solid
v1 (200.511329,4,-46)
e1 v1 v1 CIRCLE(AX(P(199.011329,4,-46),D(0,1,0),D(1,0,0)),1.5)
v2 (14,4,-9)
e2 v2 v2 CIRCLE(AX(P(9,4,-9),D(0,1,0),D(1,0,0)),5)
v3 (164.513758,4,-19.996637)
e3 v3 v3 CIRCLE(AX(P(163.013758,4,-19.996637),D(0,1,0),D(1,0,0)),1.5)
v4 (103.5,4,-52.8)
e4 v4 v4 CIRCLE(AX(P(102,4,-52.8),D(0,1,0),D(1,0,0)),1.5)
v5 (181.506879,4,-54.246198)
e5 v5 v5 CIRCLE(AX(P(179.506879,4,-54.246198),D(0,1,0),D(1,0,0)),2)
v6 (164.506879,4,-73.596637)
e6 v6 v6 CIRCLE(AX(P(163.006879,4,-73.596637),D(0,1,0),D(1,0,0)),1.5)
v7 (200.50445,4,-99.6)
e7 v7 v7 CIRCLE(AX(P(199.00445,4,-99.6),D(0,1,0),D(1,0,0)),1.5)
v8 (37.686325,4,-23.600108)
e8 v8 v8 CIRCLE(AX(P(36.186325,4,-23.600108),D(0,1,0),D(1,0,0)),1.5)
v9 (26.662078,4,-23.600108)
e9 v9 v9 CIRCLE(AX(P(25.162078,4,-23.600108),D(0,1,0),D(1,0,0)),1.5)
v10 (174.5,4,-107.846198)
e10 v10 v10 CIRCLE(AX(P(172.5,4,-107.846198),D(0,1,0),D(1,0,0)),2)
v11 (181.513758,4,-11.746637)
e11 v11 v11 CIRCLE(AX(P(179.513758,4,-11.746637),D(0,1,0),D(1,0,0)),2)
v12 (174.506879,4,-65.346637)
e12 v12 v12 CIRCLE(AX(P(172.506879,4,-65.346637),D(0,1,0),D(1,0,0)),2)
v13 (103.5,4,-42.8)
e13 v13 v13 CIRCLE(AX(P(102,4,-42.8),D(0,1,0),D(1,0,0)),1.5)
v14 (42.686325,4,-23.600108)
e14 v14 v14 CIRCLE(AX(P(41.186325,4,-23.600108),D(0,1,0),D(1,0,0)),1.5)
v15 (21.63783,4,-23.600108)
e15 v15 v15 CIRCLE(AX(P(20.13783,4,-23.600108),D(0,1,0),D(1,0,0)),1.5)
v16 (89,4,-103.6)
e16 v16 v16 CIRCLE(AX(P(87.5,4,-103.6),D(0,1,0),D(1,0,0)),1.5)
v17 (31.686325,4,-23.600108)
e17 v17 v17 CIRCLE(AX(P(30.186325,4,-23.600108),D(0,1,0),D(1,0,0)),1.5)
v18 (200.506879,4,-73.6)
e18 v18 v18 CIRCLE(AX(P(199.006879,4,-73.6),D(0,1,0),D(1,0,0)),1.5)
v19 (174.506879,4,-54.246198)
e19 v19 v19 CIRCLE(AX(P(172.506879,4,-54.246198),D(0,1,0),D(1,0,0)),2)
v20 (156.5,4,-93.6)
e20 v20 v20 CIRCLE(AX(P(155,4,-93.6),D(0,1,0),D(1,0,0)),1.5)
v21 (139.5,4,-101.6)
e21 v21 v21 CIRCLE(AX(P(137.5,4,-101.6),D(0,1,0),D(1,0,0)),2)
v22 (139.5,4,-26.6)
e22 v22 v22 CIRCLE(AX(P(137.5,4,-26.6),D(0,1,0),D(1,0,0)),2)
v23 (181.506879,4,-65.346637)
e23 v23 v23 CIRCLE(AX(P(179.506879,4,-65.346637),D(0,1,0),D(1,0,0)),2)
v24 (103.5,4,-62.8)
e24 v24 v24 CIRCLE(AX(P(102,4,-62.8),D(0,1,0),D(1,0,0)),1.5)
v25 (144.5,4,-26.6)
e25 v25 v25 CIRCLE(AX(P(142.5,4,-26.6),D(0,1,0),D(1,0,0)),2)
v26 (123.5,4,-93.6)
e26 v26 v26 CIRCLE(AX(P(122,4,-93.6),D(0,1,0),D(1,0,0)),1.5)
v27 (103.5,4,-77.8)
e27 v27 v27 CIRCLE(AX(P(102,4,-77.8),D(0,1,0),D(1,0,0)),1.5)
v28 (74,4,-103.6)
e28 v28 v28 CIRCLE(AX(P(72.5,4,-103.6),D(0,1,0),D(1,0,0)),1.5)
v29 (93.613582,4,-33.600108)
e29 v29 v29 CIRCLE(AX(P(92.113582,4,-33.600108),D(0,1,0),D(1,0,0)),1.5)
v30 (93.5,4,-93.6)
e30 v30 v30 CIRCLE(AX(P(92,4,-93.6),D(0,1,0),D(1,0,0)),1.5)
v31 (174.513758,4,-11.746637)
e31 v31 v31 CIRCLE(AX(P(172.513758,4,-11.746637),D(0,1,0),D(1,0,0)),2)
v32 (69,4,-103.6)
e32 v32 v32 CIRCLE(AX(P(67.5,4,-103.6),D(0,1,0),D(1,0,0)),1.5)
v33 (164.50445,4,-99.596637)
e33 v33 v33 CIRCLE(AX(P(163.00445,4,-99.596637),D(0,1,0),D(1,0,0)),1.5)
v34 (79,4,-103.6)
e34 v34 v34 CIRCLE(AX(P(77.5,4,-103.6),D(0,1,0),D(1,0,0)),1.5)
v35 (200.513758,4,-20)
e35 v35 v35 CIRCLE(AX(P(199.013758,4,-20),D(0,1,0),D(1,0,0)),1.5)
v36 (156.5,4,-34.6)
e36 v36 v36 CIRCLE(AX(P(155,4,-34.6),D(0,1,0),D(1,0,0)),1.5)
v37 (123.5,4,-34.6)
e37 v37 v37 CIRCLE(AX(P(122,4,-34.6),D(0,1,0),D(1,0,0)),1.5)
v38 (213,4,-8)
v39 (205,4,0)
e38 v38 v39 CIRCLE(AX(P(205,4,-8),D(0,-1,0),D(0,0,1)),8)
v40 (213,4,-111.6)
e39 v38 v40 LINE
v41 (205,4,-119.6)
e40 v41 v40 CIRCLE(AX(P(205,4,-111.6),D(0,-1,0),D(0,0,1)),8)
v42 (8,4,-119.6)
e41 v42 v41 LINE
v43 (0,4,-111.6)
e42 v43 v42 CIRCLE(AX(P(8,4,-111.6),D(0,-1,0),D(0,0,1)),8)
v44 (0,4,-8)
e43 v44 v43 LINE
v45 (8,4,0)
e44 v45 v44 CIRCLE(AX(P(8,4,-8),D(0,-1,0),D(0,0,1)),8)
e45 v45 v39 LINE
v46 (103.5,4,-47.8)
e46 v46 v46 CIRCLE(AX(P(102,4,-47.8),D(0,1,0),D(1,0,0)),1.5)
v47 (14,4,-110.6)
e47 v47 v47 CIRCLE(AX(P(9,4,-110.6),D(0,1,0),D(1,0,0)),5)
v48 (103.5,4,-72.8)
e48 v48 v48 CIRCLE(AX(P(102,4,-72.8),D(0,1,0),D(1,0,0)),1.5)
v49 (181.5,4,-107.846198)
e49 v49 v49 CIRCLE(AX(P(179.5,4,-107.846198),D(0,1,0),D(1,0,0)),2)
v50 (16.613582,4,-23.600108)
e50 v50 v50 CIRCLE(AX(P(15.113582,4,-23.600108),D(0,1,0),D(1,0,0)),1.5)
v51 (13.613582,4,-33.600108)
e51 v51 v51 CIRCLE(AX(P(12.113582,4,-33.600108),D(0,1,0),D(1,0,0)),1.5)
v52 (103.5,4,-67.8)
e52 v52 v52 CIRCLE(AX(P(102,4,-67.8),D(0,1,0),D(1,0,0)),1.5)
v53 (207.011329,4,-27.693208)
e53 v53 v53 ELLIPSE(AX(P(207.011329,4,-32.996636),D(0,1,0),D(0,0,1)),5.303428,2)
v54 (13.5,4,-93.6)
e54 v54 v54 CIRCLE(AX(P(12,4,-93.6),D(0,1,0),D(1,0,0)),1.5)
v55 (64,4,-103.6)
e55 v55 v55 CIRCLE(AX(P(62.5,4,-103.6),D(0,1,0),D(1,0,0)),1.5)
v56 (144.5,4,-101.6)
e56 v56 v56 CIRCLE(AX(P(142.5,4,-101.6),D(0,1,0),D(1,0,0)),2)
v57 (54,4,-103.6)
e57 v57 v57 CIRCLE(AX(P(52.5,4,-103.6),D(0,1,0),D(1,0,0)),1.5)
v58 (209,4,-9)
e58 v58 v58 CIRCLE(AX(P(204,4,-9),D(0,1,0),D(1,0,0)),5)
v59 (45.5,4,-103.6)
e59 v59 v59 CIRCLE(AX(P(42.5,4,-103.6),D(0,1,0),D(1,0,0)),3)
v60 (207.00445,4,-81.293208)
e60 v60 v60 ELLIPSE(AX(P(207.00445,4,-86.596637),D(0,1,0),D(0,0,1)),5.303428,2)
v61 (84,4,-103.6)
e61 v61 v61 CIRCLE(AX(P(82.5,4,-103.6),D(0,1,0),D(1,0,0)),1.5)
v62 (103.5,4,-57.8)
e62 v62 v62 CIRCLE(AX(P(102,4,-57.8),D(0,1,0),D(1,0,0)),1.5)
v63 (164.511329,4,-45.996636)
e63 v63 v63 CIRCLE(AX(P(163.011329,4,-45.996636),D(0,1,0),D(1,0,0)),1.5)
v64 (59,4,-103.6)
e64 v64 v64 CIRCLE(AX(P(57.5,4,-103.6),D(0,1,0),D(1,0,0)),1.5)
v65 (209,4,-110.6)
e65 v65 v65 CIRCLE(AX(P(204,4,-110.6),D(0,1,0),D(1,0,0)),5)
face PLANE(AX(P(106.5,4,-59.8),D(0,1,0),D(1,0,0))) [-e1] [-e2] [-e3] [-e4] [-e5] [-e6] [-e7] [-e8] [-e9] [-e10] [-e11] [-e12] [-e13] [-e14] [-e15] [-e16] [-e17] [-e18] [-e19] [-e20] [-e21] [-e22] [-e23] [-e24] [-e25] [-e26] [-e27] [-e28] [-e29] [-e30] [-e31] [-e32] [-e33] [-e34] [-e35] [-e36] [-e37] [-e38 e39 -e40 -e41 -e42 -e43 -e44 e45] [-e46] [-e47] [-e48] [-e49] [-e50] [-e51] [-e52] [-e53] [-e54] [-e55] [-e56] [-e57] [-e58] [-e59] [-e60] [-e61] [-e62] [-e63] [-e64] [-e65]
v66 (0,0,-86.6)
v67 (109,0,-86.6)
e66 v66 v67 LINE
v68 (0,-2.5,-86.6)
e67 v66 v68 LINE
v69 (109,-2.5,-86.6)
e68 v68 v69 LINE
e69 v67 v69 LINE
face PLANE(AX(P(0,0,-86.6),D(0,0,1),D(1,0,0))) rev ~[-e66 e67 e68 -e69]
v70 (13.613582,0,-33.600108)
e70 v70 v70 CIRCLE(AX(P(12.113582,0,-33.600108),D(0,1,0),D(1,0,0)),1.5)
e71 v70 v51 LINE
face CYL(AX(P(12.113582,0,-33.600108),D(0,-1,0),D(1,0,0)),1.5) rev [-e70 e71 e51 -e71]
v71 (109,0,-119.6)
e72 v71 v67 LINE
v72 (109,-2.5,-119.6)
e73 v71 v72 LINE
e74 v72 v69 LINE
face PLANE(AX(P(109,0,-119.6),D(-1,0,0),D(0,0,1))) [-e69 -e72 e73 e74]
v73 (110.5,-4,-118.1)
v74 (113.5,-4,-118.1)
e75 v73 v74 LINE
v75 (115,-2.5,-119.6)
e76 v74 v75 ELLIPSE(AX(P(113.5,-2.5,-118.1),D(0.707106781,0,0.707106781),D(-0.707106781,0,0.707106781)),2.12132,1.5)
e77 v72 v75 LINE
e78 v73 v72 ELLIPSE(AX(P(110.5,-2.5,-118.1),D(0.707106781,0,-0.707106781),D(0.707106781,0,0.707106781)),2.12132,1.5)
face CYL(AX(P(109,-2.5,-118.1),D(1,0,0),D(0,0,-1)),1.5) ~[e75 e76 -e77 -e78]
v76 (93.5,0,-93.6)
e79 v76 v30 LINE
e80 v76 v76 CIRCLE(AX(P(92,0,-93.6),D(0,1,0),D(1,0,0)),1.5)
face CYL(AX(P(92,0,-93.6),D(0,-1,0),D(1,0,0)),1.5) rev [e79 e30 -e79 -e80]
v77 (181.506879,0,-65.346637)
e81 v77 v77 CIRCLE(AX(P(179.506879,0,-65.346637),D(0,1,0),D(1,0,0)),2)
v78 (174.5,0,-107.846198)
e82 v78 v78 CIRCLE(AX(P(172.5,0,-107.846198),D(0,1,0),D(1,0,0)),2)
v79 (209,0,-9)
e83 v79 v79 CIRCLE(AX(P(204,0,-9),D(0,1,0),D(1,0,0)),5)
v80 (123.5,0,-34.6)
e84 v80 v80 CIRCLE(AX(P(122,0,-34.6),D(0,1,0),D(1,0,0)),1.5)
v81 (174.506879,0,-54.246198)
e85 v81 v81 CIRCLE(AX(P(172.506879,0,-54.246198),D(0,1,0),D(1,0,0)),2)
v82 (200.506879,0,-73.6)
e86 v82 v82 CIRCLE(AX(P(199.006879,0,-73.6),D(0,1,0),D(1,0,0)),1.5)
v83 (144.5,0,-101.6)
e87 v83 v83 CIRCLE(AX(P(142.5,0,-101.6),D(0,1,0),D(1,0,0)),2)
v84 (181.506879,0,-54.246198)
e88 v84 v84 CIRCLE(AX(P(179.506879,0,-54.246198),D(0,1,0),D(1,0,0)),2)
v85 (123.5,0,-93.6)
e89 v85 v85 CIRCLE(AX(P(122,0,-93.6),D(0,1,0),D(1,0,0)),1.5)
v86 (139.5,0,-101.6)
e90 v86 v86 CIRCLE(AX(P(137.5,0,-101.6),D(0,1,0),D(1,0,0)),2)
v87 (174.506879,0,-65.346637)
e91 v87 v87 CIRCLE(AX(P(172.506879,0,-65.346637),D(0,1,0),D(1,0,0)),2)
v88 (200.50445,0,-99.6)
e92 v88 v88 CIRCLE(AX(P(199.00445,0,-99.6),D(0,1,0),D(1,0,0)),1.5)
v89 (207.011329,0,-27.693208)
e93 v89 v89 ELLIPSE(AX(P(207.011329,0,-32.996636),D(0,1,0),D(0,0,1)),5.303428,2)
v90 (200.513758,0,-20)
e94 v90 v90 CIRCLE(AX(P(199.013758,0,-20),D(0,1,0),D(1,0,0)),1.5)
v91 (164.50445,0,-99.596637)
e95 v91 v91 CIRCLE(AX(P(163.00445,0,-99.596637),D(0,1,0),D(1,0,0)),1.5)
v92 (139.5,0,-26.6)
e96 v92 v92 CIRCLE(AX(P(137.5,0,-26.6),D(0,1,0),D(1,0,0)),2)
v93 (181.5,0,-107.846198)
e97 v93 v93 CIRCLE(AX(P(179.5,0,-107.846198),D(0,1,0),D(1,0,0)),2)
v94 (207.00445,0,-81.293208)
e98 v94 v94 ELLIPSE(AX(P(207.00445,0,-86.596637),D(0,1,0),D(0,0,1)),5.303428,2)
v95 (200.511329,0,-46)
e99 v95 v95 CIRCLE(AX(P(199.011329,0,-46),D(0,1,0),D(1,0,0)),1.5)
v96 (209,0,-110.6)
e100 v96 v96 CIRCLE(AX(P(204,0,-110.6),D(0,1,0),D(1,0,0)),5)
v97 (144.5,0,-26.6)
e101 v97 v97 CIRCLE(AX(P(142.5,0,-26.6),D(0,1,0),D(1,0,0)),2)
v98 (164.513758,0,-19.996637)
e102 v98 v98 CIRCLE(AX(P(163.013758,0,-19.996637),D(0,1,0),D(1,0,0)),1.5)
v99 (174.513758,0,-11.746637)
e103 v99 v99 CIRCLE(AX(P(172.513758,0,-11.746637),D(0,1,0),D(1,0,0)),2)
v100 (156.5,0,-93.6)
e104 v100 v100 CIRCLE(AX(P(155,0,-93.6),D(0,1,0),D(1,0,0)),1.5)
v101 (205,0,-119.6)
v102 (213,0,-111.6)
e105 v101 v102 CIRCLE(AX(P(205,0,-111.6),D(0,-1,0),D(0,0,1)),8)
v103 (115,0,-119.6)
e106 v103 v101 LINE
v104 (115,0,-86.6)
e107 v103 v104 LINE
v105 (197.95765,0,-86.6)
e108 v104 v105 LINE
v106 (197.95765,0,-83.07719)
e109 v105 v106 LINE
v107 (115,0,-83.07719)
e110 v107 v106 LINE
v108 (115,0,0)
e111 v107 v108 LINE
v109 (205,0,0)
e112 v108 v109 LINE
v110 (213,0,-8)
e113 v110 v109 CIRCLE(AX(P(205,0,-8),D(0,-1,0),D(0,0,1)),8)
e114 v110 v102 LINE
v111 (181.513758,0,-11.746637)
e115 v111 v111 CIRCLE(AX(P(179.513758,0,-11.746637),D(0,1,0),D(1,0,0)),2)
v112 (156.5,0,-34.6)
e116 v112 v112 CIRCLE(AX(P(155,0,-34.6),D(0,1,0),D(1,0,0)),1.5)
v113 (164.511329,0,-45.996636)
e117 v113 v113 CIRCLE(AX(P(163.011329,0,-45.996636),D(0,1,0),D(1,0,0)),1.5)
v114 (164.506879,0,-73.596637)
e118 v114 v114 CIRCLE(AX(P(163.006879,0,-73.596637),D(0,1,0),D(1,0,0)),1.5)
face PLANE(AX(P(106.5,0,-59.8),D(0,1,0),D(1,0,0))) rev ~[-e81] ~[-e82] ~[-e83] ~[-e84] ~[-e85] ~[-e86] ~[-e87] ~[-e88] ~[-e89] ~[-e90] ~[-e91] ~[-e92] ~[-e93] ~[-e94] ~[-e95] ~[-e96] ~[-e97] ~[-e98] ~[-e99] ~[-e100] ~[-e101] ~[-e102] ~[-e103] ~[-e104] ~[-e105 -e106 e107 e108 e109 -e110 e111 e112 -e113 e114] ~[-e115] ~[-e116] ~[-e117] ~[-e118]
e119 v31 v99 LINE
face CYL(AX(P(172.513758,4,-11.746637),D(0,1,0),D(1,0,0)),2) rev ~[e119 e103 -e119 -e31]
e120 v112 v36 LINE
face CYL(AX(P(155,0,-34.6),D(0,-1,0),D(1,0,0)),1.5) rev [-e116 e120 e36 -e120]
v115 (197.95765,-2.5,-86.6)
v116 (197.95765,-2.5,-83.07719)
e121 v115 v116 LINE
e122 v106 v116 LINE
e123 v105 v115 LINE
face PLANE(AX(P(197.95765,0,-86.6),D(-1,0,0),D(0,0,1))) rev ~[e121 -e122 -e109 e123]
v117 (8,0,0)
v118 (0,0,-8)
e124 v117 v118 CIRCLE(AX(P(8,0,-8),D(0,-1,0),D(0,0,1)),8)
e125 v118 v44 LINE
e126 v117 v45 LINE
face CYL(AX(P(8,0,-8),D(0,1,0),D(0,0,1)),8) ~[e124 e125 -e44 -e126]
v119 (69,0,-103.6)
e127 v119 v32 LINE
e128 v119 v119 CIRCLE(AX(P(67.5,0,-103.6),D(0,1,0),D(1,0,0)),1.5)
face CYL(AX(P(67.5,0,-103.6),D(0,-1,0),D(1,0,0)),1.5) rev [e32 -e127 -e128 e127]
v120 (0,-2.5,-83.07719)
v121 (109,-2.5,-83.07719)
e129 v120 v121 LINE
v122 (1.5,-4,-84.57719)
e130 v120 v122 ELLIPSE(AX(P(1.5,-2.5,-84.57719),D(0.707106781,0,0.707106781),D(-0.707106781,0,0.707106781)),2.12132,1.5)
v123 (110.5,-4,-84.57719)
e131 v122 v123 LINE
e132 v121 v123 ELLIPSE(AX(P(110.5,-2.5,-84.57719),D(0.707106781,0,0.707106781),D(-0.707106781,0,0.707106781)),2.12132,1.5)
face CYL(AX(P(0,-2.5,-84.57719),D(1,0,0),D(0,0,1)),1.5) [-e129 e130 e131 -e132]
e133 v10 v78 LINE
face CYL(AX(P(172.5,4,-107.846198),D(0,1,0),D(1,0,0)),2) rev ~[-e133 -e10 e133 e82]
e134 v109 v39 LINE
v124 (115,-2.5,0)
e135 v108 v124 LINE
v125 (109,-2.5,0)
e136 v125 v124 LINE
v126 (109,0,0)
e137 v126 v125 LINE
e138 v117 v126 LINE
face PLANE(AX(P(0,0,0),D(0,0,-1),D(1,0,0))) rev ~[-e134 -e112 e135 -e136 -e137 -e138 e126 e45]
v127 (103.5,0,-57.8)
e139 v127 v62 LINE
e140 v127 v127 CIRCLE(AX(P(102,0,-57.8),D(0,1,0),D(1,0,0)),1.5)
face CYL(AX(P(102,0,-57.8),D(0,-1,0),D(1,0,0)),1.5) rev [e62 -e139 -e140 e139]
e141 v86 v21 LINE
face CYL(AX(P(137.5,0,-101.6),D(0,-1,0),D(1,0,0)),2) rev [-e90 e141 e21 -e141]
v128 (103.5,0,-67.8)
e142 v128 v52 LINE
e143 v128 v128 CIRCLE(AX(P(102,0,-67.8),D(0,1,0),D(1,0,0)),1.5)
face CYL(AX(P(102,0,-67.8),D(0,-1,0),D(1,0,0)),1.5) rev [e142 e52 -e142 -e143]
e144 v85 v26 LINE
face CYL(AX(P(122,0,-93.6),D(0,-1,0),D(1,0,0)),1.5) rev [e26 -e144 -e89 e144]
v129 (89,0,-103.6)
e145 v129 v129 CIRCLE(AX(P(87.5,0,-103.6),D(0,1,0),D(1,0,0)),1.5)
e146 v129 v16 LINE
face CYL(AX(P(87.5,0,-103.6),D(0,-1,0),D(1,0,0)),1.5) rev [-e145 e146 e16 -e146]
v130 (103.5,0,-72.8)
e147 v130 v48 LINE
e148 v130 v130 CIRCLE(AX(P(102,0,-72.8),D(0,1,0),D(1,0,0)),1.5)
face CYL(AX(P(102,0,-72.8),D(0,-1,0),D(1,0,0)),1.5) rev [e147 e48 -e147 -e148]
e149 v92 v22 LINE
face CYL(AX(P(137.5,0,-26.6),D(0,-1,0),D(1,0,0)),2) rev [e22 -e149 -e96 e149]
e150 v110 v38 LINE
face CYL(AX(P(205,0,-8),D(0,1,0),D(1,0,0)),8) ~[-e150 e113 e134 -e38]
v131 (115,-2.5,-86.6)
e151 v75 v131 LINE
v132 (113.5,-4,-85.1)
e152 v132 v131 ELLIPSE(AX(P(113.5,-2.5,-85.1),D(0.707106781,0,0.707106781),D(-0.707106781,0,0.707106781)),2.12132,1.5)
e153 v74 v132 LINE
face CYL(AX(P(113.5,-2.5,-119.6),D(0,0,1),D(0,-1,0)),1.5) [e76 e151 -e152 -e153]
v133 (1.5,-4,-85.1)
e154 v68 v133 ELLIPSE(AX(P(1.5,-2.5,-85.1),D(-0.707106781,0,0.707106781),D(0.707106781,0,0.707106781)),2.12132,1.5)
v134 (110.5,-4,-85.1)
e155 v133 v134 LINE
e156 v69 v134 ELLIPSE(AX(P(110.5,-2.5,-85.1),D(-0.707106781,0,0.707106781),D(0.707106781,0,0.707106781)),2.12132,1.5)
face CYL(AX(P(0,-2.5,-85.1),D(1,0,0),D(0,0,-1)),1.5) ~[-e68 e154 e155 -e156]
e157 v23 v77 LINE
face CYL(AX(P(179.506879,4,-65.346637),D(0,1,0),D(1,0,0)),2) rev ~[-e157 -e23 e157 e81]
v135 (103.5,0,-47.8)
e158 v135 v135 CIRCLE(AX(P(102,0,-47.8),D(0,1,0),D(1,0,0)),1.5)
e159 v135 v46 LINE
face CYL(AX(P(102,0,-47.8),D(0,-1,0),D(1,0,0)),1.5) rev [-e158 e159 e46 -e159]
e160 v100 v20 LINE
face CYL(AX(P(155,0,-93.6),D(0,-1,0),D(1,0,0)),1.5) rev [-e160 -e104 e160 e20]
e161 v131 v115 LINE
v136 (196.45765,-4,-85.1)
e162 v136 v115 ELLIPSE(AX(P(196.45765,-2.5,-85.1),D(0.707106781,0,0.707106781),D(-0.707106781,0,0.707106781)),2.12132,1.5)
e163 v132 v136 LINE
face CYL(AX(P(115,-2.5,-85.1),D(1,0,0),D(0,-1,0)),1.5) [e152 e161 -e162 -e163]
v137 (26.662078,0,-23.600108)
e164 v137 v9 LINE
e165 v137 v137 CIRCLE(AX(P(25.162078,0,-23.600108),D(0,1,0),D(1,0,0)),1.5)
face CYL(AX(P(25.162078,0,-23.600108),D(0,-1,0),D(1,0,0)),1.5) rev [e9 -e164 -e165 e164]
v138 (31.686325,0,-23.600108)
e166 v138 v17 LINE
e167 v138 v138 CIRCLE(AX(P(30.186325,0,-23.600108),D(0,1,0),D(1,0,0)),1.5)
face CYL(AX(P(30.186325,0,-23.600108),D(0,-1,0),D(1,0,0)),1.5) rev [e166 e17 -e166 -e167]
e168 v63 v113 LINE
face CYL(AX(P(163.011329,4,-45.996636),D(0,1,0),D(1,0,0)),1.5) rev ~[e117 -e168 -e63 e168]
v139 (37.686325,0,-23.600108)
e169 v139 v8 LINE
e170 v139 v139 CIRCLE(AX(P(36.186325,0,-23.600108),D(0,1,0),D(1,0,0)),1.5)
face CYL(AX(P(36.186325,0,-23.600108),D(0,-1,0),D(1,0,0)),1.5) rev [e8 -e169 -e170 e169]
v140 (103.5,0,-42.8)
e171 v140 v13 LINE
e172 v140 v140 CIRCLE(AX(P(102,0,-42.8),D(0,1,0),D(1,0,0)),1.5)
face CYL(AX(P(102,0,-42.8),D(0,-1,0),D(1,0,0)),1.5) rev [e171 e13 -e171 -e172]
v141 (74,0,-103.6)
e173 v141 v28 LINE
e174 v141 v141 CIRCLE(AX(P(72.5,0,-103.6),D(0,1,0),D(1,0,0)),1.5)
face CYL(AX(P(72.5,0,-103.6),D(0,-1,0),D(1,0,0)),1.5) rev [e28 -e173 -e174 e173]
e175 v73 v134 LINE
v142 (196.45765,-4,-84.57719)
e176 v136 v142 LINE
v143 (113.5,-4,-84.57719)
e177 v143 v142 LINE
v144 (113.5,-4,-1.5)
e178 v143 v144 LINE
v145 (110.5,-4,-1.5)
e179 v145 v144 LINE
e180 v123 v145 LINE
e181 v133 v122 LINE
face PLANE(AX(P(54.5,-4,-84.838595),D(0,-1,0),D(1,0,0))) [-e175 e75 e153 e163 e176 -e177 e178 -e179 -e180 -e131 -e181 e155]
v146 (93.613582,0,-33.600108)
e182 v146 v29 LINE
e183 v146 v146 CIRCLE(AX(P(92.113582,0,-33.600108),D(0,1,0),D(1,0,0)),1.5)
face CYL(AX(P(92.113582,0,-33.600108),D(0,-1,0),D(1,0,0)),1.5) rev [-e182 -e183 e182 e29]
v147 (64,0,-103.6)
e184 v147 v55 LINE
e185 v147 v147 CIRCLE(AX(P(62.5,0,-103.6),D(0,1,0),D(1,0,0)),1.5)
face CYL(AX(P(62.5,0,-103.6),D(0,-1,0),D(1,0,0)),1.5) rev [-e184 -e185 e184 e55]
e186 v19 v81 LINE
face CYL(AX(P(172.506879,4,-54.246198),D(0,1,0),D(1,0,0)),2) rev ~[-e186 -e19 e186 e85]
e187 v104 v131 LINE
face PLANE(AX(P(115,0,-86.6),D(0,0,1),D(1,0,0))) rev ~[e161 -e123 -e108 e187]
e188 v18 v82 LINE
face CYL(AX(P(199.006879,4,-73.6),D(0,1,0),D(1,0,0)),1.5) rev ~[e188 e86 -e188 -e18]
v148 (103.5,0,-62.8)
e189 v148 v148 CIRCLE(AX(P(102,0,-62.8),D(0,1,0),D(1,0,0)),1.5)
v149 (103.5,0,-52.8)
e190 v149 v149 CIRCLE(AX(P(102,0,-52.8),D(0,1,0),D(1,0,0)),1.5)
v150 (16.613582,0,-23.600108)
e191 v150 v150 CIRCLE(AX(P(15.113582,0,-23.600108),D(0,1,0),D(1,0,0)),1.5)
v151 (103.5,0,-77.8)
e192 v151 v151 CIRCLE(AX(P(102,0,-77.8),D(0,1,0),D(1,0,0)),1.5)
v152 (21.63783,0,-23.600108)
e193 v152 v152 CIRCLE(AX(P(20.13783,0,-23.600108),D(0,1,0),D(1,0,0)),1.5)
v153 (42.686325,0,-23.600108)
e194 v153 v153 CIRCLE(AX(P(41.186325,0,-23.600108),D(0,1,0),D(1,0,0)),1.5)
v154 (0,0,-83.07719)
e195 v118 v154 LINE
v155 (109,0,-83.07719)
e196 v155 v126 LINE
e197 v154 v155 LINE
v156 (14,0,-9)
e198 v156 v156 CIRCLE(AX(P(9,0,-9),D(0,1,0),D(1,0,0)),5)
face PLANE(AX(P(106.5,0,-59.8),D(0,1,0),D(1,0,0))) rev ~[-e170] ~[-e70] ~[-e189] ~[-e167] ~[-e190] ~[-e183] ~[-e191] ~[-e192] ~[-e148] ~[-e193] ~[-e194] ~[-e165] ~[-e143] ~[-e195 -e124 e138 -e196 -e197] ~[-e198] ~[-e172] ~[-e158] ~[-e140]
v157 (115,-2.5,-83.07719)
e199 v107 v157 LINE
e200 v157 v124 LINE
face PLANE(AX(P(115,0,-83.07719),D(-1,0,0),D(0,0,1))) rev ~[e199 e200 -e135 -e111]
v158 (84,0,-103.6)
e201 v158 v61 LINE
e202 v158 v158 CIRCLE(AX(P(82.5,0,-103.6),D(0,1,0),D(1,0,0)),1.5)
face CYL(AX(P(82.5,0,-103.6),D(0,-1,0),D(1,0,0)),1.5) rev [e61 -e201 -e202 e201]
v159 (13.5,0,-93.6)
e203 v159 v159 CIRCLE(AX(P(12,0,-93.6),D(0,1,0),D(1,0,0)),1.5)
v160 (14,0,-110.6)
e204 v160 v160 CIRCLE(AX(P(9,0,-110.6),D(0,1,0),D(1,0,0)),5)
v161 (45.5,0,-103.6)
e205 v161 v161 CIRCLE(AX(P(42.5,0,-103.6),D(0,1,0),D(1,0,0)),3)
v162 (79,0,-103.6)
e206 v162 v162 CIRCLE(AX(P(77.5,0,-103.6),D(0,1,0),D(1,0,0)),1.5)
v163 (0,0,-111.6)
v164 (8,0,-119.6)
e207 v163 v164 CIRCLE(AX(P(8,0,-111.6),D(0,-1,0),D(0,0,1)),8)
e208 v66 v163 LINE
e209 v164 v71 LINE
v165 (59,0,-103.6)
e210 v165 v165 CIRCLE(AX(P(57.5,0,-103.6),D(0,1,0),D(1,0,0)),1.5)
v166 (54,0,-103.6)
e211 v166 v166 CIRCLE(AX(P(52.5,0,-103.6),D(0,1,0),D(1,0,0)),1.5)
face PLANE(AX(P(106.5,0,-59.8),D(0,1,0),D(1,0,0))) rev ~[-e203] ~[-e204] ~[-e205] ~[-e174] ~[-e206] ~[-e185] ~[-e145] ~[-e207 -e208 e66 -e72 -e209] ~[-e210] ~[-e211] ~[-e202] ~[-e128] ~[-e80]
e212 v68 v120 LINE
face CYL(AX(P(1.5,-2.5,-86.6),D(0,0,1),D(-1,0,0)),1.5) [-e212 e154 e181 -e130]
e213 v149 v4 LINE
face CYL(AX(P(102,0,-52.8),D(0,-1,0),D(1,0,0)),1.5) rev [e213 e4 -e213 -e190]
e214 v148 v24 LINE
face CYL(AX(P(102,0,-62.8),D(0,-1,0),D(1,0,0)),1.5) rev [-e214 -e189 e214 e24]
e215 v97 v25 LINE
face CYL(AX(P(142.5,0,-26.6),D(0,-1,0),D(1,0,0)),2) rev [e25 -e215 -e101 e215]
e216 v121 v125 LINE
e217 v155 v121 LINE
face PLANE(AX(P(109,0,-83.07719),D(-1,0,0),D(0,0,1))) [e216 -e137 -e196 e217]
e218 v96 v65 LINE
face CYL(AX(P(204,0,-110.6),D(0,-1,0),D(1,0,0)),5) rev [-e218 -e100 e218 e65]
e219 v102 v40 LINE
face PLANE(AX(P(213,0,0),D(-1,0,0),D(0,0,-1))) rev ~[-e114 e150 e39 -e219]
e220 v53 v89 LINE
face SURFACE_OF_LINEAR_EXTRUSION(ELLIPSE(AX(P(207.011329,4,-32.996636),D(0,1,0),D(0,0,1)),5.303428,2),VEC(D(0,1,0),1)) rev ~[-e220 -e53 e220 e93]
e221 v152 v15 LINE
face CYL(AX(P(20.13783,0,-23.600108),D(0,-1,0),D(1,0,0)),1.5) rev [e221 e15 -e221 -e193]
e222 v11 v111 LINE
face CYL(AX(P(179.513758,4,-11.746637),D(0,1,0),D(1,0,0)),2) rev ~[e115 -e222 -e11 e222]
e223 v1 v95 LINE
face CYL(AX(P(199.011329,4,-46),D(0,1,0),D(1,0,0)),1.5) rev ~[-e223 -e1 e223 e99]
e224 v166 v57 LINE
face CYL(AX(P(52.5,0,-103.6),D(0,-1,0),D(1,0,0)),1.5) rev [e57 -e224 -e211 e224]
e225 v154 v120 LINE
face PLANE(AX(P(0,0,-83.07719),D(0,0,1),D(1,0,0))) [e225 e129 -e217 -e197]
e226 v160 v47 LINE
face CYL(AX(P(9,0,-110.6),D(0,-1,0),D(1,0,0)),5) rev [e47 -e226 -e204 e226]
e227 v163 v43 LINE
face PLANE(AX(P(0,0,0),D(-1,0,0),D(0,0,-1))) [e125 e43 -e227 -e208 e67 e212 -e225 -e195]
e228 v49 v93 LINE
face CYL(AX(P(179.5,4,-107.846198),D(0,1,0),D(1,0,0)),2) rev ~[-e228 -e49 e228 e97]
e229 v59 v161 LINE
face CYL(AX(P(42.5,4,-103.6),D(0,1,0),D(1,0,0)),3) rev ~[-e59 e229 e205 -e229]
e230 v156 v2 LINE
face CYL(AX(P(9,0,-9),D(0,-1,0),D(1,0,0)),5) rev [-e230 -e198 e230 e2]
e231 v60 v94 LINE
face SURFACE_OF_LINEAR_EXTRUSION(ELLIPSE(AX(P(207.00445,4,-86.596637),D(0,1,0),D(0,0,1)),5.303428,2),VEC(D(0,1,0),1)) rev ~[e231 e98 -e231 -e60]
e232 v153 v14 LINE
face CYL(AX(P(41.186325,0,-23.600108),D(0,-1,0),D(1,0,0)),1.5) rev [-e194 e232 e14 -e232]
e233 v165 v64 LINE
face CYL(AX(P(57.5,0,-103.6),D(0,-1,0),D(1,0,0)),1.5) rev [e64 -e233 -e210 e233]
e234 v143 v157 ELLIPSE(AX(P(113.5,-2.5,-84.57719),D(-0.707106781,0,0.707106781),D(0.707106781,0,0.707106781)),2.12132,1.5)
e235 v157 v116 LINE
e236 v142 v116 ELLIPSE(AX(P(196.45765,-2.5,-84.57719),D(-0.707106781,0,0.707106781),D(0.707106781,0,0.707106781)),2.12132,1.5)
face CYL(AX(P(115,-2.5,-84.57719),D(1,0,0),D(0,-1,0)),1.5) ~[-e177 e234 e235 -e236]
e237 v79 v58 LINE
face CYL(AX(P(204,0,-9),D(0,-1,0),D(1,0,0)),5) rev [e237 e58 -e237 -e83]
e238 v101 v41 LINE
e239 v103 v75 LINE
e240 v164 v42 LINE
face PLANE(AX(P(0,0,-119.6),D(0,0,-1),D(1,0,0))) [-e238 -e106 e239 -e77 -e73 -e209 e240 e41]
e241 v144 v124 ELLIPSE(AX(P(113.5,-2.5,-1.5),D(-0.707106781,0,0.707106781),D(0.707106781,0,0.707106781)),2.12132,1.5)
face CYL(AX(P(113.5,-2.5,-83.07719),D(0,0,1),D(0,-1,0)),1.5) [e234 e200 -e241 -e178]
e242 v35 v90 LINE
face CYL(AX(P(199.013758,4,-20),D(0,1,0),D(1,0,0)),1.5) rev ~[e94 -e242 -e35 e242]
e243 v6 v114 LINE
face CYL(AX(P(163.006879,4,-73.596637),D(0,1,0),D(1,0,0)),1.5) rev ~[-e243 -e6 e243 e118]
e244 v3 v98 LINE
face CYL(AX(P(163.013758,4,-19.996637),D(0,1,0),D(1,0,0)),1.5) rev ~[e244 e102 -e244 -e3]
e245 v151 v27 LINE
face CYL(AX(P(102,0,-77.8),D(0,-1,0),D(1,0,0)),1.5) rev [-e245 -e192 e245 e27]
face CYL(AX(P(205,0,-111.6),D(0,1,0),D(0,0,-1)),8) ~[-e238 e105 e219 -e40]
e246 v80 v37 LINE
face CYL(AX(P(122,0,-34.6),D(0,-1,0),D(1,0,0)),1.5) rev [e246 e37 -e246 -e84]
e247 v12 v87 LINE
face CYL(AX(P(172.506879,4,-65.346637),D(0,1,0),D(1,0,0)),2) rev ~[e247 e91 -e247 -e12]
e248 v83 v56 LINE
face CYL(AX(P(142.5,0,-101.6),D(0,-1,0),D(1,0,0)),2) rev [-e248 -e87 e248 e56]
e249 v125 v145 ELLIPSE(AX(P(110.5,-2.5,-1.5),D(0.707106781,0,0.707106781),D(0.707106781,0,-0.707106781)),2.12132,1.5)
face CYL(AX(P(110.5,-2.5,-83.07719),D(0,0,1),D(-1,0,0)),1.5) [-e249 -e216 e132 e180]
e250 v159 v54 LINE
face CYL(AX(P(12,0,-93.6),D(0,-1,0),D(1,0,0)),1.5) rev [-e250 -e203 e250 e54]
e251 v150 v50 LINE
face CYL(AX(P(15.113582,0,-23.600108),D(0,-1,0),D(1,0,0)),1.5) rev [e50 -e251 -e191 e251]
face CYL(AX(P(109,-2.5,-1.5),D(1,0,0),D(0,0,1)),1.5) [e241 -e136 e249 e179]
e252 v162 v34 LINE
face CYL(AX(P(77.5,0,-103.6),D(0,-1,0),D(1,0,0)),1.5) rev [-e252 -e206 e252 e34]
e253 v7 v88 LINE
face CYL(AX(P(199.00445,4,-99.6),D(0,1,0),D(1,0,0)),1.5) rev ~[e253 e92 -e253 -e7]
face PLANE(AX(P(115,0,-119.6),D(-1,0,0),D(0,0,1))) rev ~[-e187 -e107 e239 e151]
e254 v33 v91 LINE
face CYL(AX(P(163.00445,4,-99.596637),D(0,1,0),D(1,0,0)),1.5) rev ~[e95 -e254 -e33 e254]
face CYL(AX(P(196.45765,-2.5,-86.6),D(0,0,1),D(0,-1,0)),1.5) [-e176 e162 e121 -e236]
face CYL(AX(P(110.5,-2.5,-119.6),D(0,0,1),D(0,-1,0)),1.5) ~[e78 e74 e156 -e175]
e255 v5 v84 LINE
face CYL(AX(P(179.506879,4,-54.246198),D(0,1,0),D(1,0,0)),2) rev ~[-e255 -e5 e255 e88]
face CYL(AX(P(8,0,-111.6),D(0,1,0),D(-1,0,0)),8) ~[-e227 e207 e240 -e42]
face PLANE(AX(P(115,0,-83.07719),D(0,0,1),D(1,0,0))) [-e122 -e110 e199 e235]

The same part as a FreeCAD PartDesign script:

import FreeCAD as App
import Part
import Sketcher


def edges_at(feature, points):
    """Names of the edges that pass closest to the given points."""
    edges = feature.Shape.Edges
    near = lambda p: min(range(len(edges)), key=lambda i: edges[i].distToShape(Part.Vertex(*p))[0])
    return sorted({f"Edge{near(p) + 1}" for p in points})


def add_polygon(sketch, points):
    """Adds a closed chain of lines whose ends are joined by coincident constraints."""
    first, n = sketch.GeometryCount, len(points)
    for a, b in zip(points, points[1:] + points[:1]):
        sketch.addGeometry(Part.LineSegment(App.Vector(*a, 0), App.Vector(*b, 0)), False)
    for i in range(n):
        sketch.addConstraint(Sketcher.Constraint("Coincident", first + i, 2, first + (i + 1) % n, 1))

doc = App.newDocument("Part")
body = doc.addObject("PartDesign::Body", "Body")

# Sketch on XZ plane
sketch1 = body.newObject("Sketcher::SketchObject", "Sketch")
sketch1.AttachmentSupport = (doc.getObject("XZ_Plane"), [""])
sketch1.MapMode = "FlatFace"
add_polygon(sketch1, [(0, -119.6), (0, 0), (213, 0), (213, -119.6)])  # lines 0-3
sketch1.addGeometry(Part.Circle(App.Vector(9, -9, 0), App.Vector(0, 0, 1), 5), False)  # 4
sketch1.addGeometry(Part.Circle(App.Vector(15.113582, -23.600108, 0), App.Vector(0, 0, 1), 1.5), False)  # 5
sketch1.addGeometry(Part.Circle(App.Vector(20.13783, -23.600108, 0), App.Vector(0, 0, 1), 1.5), False)  # 6
sketch1.addGeometry(Part.Circle(App.Vector(25.162078, -23.600108, 0), App.Vector(0, 0, 1), 1.5), False)  # 7
sketch1.addGeometry(Part.Circle(App.Vector(30.186325, -23.600108, 0), App.Vector(0, 0, 1), 1.5), False)  # 8
sketch1.addGeometry(Part.Circle(App.Vector(36.186325, -23.600108, 0), App.Vector(0, 0, 1), 1.5), False)  # 9
sketch1.addGeometry(Part.Circle(App.Vector(41.186325, -23.600108, 0), App.Vector(0, 0, 1), 1.5), False)  # 10
sketch1.addGeometry(Part.Circle(App.Vector(12.113582, -33.600108, 0), App.Vector(0, 0, 1), 1.5), False)  # 11
sketch1.addGeometry(Part.Circle(App.Vector(92.113582, -33.600108, 0), App.Vector(0, 0, 1), 1.5), False)  # 12
sketch1.addGeometry(Part.Circle(App.Vector(102, -42.8, 0), App.Vector(0, 0, 1), 1.5), False)  # 13
sketch1.addGeometry(Part.Circle(App.Vector(102, -47.8, 0), App.Vector(0, 0, 1), 1.5), False)  # 14
sketch1.addGeometry(Part.Circle(App.Vector(102, -52.8, 0), App.Vector(0, 0, 1), 1.5), False)  # 15
sketch1.addGeometry(Part.Circle(App.Vector(102, -57.8, 0), App.Vector(0, 0, 1), 1.5), False)  # 16
sketch1.addGeometry(Part.Circle(App.Vector(137.5, -26.6, 0), App.Vector(0, 0, 1), 2), False)  # 17
sketch1.addGeometry(Part.Circle(App.Vector(142.5, -26.6, 0), App.Vector(0, 0, 1), 2), False)  # 18
sketch1.addGeometry(Part.Circle(App.Vector(204, -9, 0), App.Vector(0, 0, 1), 5), False)  # 19
sketch1.addGeometry(Part.Circle(App.Vector(122, -34.6, 0), App.Vector(0, 0, 1), 1.5), False)  # 20
sketch1.addGeometry(Part.Circle(App.Vector(155, -34.6, 0), App.Vector(0, 0, 1), 1.5), False)  # 21
sketch1.addGeometry(Part.Circle(App.Vector(102, -62.8, 0), App.Vector(0, 0, 1), 1.5), False)  # 22
sketch1.addGeometry(Part.Circle(App.Vector(102, -67.8, 0), App.Vector(0, 0, 1), 1.5), False)  # 23
sketch1.addGeometry(Part.Circle(App.Vector(102, -72.8, 0), App.Vector(0, 0, 1), 1.5), False)  # 24
sketch1.addGeometry(Part.Circle(App.Vector(102, -77.8, 0), App.Vector(0, 0, 1), 1.5), False)  # 25
sketch1.addGeometry(Part.Circle(App.Vector(12, -93.6, 0), App.Vector(0, 0, 1), 1.5), False)  # 26
sketch1.addGeometry(Part.Circle(App.Vector(9, -110.6, 0), App.Vector(0, 0, 1), 5), False)  # 27
sketch1.addGeometry(Part.Circle(App.Vector(52.5, -103.6, 0), App.Vector(0, 0, 1), 1.5), False)  # 28
sketch1.addGeometry(Part.Circle(App.Vector(92, -93.6, 0), App.Vector(0, 0, 1), 1.5), False)  # 29
sketch1.addGeometry(Part.Circle(App.Vector(57.5, -103.6, 0), App.Vector(0, 0, 1), 1.5), False)  # 30
sketch1.addGeometry(Part.Circle(App.Vector(62.5, -103.6, 0), App.Vector(0, 0, 1), 1.5), False)  # 31
sketch1.addGeometry(Part.Circle(App.Vector(67.5, -103.6, 0), App.Vector(0, 0, 1), 1.5), False)  # 32
sketch1.addGeometry(Part.Circle(App.Vector(72.5, -103.6, 0), App.Vector(0, 0, 1), 1.5), False)  # 33
sketch1.addGeometry(Part.Circle(App.Vector(77.5, -103.6, 0), App.Vector(0, 0, 1), 1.5), False)  # 34
sketch1.addGeometry(Part.Circle(App.Vector(82.5, -103.6, 0), App.Vector(0, 0, 1), 1.5), False)  # 35
sketch1.addGeometry(Part.Circle(App.Vector(87.5, -103.6, 0), App.Vector(0, 0, 1), 1.5), False)  # 36
sketch1.addGeometry(Part.Circle(App.Vector(122, -93.6, 0), App.Vector(0, 0, 1), 1.5), False)  # 37
sketch1.addGeometry(Part.Circle(App.Vector(155, -93.6, 0), App.Vector(0, 0, 1), 1.5), False)  # 38
sketch1.addGeometry(Part.Circle(App.Vector(137.5, -101.6, 0), App.Vector(0, 0, 1), 2), False)  # 39
sketch1.addGeometry(Part.Circle(App.Vector(142.5, -101.6, 0), App.Vector(0, 0, 1), 2), False)  # 40
sketch1.addGeometry(Part.Circle(App.Vector(204, -110.6, 0), App.Vector(0, 0, 1), 5), False)  # 41
sketch1.addConstraint([
    Sketcher.Constraint("Vertical", 0),
    Sketcher.Constraint("Horizontal", 1),
    Sketcher.Constraint("Vertical", 2),
    Sketcher.Constraint("Horizontal", 3),
    Sketcher.Constraint("Coincident", 0, 2, -1, 1),
    Sketcher.Constraint("Equal", 5, 6),
    Sketcher.Constraint("Equal", 6, 7),
    Sketcher.Constraint("Equal", 7, 8),
    Sketcher.Constraint("Equal", 8, 9),
    Sketcher.Constraint("Equal", 9, 10),
    Sketcher.Constraint("Equal", 10, 11),
    Sketcher.Constraint("Equal", 11, 12),
    Sketcher.Constraint("Equal", 12, 13),
    Sketcher.Constraint("Equal", 13, 14),
    Sketcher.Constraint("Equal", 14, 15),
    Sketcher.Constraint("Equal", 15, 16),
    Sketcher.Constraint("Equal", 17, 18),
    Sketcher.Constraint("Equal", 4, 19),
    Sketcher.Constraint("Equal", 16, 20),
    Sketcher.Constraint("Equal", 20, 21),
    Sketcher.Constraint("Equal", 21, 22),
    Sketcher.Constraint("Equal", 22, 23),
    Sketcher.Constraint("Equal", 23, 24),
    Sketcher.Constraint("Equal", 24, 25),
    Sketcher.Constraint("Equal", 25, 26),
    Sketcher.Constraint("Equal", 19, 27),
    Sketcher.Constraint("Equal", 26, 28),
    Sketcher.Constraint("Equal", 28, 29),
    Sketcher.Constraint("Equal", 29, 30),
    Sketcher.Constraint("Equal", 30, 31),
    Sketcher.Constraint("Equal", 31, 32),
    Sketcher.Constraint("Equal", 32, 33),
    Sketcher.Constraint("Equal", 33, 34),
    Sketcher.Constraint("Equal", 34, 35),
    Sketcher.Constraint("Equal", 35, 36),
    Sketcher.Constraint("Equal", 36, 37),
    Sketcher.Constraint("Equal", 37, 38),
    Sketcher.Constraint("Equal", 18, 39),
    Sketcher.Constraint("Equal", 39, 40),
    Sketcher.Constraint("Equal", 27, 41),
    Sketcher.Constraint("Horizontal", 5, 3, 6, 3),
    Sketcher.Constraint("Horizontal", 6, 3, 7, 3),
    Sketcher.Constraint("Horizontal", 7, 3, 8, 3),
    Sketcher.Constraint("Horizontal", 8, 3, 9, 3),
    Sketcher.Constraint("Horizontal", 9, 3, 10, 3),
    Sketcher.Constraint("Horizontal", 11, 3, 12, 3),
    Sketcher.Constraint("Horizontal", 17, 3, 18, 3),
    Sketcher.Constraint("Horizontal", 4, 3, 19, 3),
    Sketcher.Constraint("Horizontal", 20, 3, 21, 3),
    Sketcher.Constraint("Horizontal", 26, 3, 29, 3),
    Sketcher.Constraint("Horizontal", 28, 3, 30, 3),
    Sketcher.Constraint("Horizontal", 30, 3, 31, 3),
    Sketcher.Constraint("Horizontal", 31, 3, 32, 3),
    Sketcher.Constraint("Horizontal", 32, 3, 33, 3),
    Sketcher.Constraint("Horizontal", 33, 3, 34, 3),
    Sketcher.Constraint("Horizontal", 34, 3, 35, 3),
    Sketcher.Constraint("Horizontal", 35, 3, 36, 3),
    Sketcher.Constraint("Horizontal", 29, 3, 37, 3),
    Sketcher.Constraint("Horizontal", 37, 3, 38, 3),
    Sketcher.Constraint("Horizontal", 39, 3, 40, 3),
    Sketcher.Constraint("Horizontal", 27, 3, 41, 3),
    Sketcher.Constraint("Vertical", 13, 3, 14, 3),
    Sketcher.Constraint("Vertical", 14, 3, 15, 3),
    Sketcher.Constraint("Vertical", 15, 3, 16, 3),
    Sketcher.Constraint("Vertical", 16, 3, 22, 3),
    Sketcher.Constraint("Vertical", 22, 3, 23, 3),
    Sketcher.Constraint("Vertical", 23, 3, 24, 3),
    Sketcher.Constraint("Vertical", 24, 3, 25, 3),
    Sketcher.Constraint("Vertical", 4, 3, 27, 3),
    Sketcher.Constraint("Vertical", 20, 3, 37, 3),
    Sketcher.Constraint("Vertical", 21, 3, 38, 3),
    Sketcher.Constraint("Vertical", 17, 3, 39, 3),
    Sketcher.Constraint("Vertical", 18, 3, 40, 3),
    Sketcher.Constraint("Vertical", 19, 3, 41, 3),
    Sketcher.Constraint("Diameter", 4, 10.0),
    Sketcher.Constraint("Diameter", 5, 3.0),
    Sketcher.Constraint("Diameter", 17, 4.0),
    Sketcher.Constraint("DistanceX", 1, 1, 1, 2, 213.0),
    Sketcher.Constraint("DistanceY", 0, 1, 0, 2, 119.6),
    Sketcher.Constraint("DistanceX", -1, 1, 4, 3, 9.0),
    Sketcher.Constraint("DistanceY", 4, 3, -1, 1, 9.0),
    Sketcher.Constraint("DistanceX", -1, 1, 13, 3, 102.0),
    Sketcher.Constraint("DistanceX", -1, 1, 19, 3, 204.0),
    Sketcher.Constraint("DistanceX", -1, 1, 20, 3, 122.0),
    Sketcher.Constraint("DistanceX", -1, 1, 21, 3, 155.0),
    Sketcher.Constraint("DistanceX", -1, 1, 26, 3, 12.0),
    Sketcher.Constraint("DistanceX", -1, 1, 29, 3, 92.0),
    Sketcher.Constraint("DistanceX", 8, 3, 9, 3, 6.0),
    Sketcher.Constraint("DistanceX", 9, 3, 10, 3, 5.0),
    Sketcher.Constraint("DistanceX", 11, 3, 5, 3, 3.0),
    Sketcher.Constraint("DistanceY", 11, 3, 5, 3, 10.0),
    Sketcher.Constraint("DistanceY", 14, 3, 13, 3, 5.0),
    Sketcher.Constraint("DistanceY", 15, 3, 14, 3, 5.0),
    Sketcher.Constraint("DistanceY", 16, 3, 15, 3, 5.0),
    Sketcher.Constraint("DistanceX", 17, 3, 18, 3, 5.0),
    Sketcher.Constraint("DistanceY", 20, 3, 17, 3, 8.0),
    Sketcher.Constraint("DistanceY", 22, 3, 16, 3, 5.0),
    Sketcher.Constraint("DistanceY", 23, 3, 22, 3, 5.0),
    Sketcher.Constraint("DistanceY", 24, 3, 23, 3, 5.0),
    Sketcher.Constraint("DistanceY", 25, 3, 24, 3, 5.0),
    Sketcher.Constraint("DistanceY", 27, 3, 26, 3, 17.0),
    Sketcher.Constraint("DistanceY", 28, 3, 26, 3, 10.0),
    Sketcher.Constraint("DistanceX", 28, 3, 30, 3, 5.0),
    Sketcher.Constraint("DistanceX", 30, 3, 31, 3, 5.0),
    Sketcher.Constraint("DistanceX", 31, 3, 32, 3, 5.0),
    Sketcher.Constraint("DistanceX", 32, 3, 33, 3, 5.0),
    Sketcher.Constraint("DistanceX", 33, 3, 34, 3, 5.0),
    Sketcher.Constraint("DistanceX", 34, 3, 35, 3, 5.0),
    Sketcher.Constraint("DistanceX", 35, 3, 36, 3, 5.0),
    Sketcher.Constraint("DistanceY", 38, 3, 21, 3, 59.0),
    Sketcher.Constraint("DistanceY", 39, 3, 37, 3, 8.0),
    Sketcher.Constraint("DistanceY", 2, 2, 41, 3, 9.0),
    Sketcher.Constraint("DistanceY", 13, 3, -1, 1, 42.8),
    Sketcher.Constraint("DistanceX", -1, 1, 17, 3, 137.5),
    Sketcher.Constraint("DistanceX", -1, 1, 28, 3, 52.5),
    Sketcher.Constraint("DistanceX", -1, 1, 6, 3, 20.13783),
    Sketcher.Constraint("DistanceX", -1, 1, 5, 3, 15.113582),
    Sketcher.Constraint("DistanceY", 5, 3, -1, 1, 23.600108),
    Sketcher.Constraint("DistanceX", -1, 1, 7, 3, 25.162078),
    Sketcher.Constraint("DistanceX", -1, 1, 8, 3, 30.186325),
    Sketcher.Constraint("DistanceX", -1, 1, 12, 3, 92.113582),
])
pad1 = body.newObject("PartDesign::Pad", "Pad")
pad1.Profile = sketch1
pad1.Length = 4
pad1.Reversed = True

# Sketch on XZ plane
sketch2 = body.newObject("Sketcher::SketchObject", "Sketch001")
sketch2.AttachmentSupport = (doc.getObject("XZ_Plane"), [""])
sketch2.MapMode = "FlatFace"
sketch2.AttachmentOffset = App.Placement(App.Vector(0, 0, -4), App.Rotation())
sketch2.addGeometry([
    Part.Circle(App.Vector(199.00445, -99.6, 0), App.Vector(0, 0, 1), 1.5),  # 0
    Part.Circle(App.Vector(199.006879, -73.6, 0), App.Vector(0, 0, 1), 1.5),  # 1
    Part.Circle(App.Vector(163.00445, -99.596637, 0), App.Vector(0, 0, 1), 1.5),  # 2
    Part.Circle(App.Vector(163.006879, -73.596637, 0), App.Vector(0, 0, 1), 1.5),  # 3
    Part.Circle(App.Vector(172.5, -107.846198, 0), App.Vector(0, 0, 1), 2),  # 4
    Part.Circle(App.Vector(179.5, -107.846198, 0), App.Vector(0, 0, 1), 2),  # 5
    Part.Circle(App.Vector(172.506879, -65.346637, 0), App.Vector(0, 0, 1), 2),  # 6
    Part.Circle(App.Vector(179.506879, -65.346637, 0), App.Vector(0, 0, 1), 2),  # 7
    Part.Circle(App.Vector(199.011329, -46, 0), App.Vector(0, 0, 1), 1.5),  # 8
    Part.Circle(App.Vector(199.013758, -20, 0), App.Vector(0, 0, 1), 1.5),  # 9
    Part.Circle(App.Vector(163.011329, -45.996636, 0), App.Vector(0, 0, 1), 1.5),  # 10
    Part.Circle(App.Vector(163.013758, -19.996637, 0), App.Vector(0, 0, 1), 1.5),  # 11
    Part.Circle(App.Vector(172.506879, -54.246198, 0), App.Vector(0, 0, 1), 2),  # 12
    Part.Circle(App.Vector(179.506879, -54.246198, 0), App.Vector(0, 0, 1), 2),  # 13
    Part.Circle(App.Vector(172.513758, -11.746637, 0), App.Vector(0, 0, 1), 2),  # 14
    Part.Circle(App.Vector(179.513758, -11.746637, 0), App.Vector(0, 0, 1), 2),  # 15
    Part.Ellipse(App.Vector(207.00445, -81.293208, 0), App.Vector(205.00445, -86.596637, 0), App.Vector(207.00445, -86.596637, 0)),  # 16
    Part.Ellipse(App.Vector(207.011329, -27.693208, 0), App.Vector(205.011329, -32.996636, 0), App.Vector(207.011329, -32.996636, 0)),  # 17
], False)
sketch2.addConstraint([
    Sketcher.Constraint("Block", 16),
    Sketcher.Constraint("Block", 17),
    Sketcher.Constraint("Equal", 0, 1),
    Sketcher.Constraint("Equal", 1, 2),
    Sketcher.Constraint("Equal", 2, 3),
    Sketcher.Constraint("Equal", 4, 5),
    Sketcher.Constraint("Equal", 5, 6),
    Sketcher.Constraint("Equal", 6, 7),
    Sketcher.Constraint("Equal", 3, 8),
    Sketcher.Constraint("Equal", 8, 9),
    Sketcher.Constraint("Equal", 9, 10),
    Sketcher.Constraint("Equal", 10, 11),
    Sketcher.Constraint("Equal", 7, 12),
    Sketcher.Constraint("Equal", 12, 13),
    Sketcher.Constraint("Equal", 13, 14),
    Sketcher.Constraint("Equal", 14, 15),
    Sketcher.Constraint("Horizontal", 4, 3, 5, 3),
    Sketcher.Constraint("Horizontal", 6, 3, 7, 3),
    Sketcher.Constraint("Horizontal", 12, 3, 13, 3),
    Sketcher.Constraint("Horizontal", 14, 3, 15, 3),
    Sketcher.Constraint("Vertical", 6, 3, 12, 3),
    Sketcher.Constraint("Vertical", 7, 3, 13, 3),
    Sketcher.Constraint("Diameter", 0, 3.0),
    Sketcher.Constraint("Diameter", 4, 4.0),
    Sketcher.Constraint("DistanceY", 8, 3, -1, 1, 46.0),
    Sketcher.Constraint("DistanceY", 9, 3, -1, 1, 20.0),
    Sketcher.Constraint("DistanceY", 0, 3, 1, 3, 26.0),
    Sketcher.Constraint("DistanceX", 2, 3, 0, 3, 36.0),
    Sketcher.Constraint("DistanceY", 2, 3, 3, 3, 26.0),
    Sketcher.Constraint("DistanceX", 3, 3, 1, 3, 36.0),
    Sketcher.Constraint("DistanceX", 4, 3, 5, 3, 7.0),
    Sketcher.Constraint("DistanceX", 6, 3, 7, 3, 7.0),
    Sketcher.Constraint("DistanceX", 10, 3, 8, 3, 36.0),
    Sketcher.Constraint("DistanceY", 10, 3, 11, 3, 26.0),
    Sketcher.Constraint("DistanceX", 11, 3, 9, 3, 36.0),
    Sketcher.Constraint("DistanceX", 14, 3, 15, 3, 7.0),
    Sketcher.Constraint("DistanceY", 0, 3, -1, 1, 99.6),
    Sketcher.Constraint("DistanceX", -1, 1, 4, 3, 172.5),
    Sketcher.Constraint("DistanceX", 3, 3, 6, 3, 9.5),
    Sketcher.Constraint("DistanceY", 3, 3, 10, 3, 27.6),
    Sketcher.Constraint("DistanceX", 11, 3, 14, 3, 9.5),
    Sketcher.Constraint("DistanceY", 3, 3, 6, 3, 8.25),
    Sketcher.Constraint("DistanceY", 11, 3, 14, 3, 8.25),
    Sketcher.Constraint("DistanceX", -1, 1, 0, 3, 199.00445),
    Sketcher.Constraint("DistanceX", -1, 1, 1, 3, 199.006879),
    Sketcher.Constraint("DistanceX", -1, 1, 8, 3, 199.011329),
    Sketcher.Constraint("DistanceX", -1, 1, 9, 3, 199.013758),
    Sketcher.Constraint("DistanceY", 4, 3, 2, 3, 8.249561),
    Sketcher.Constraint("DistanceY", 6, 3, 12, 3, 11.100439),
    Sketcher.Constraint("DistanceY", 2, 3, -1, 1, 99.596637),
])
pocket1 = body.newObject("PartDesign::Pocket", "Pocket")
pocket1.Profile = sketch2
pocket1.Length = 4
pocket1.Reversed = True

# Sketch on XZ plane
sketch3 = body.newObject("Sketcher::SketchObject", "Sketch002")
sketch3.AttachmentSupport = (doc.getObject("XZ_Plane"), [""])
sketch3.MapMode = "FlatFace"
sketch3.AttachmentOffset = App.Placement(App.Vector(0, 0, -4), App.Rotation())
sketch3.addGeometry(Part.Circle(App.Vector(42.5, -103.6, 0), App.Vector(0, 0, 1), 3), False)
sketch3.addConstraint([
    Sketcher.Constraint("Diameter", 0, 6.0),
    Sketcher.Constraint("DistanceX", -1, 1, 0, 3, 42.5),
    Sketcher.Constraint("DistanceY", 0, 3, -1, 1, 103.6),
])
pocket2 = body.newObject("PartDesign::Pocket", "Pocket001")
pocket2.Profile = sketch3
pocket2.Length = 4
pocket2.Reversed = True

# Sketch on XZ plane
sketch4 = body.newObject("Sketcher::SketchObject", "Sketch003")
sketch4.AttachmentSupport = (doc.getObject("XZ_Plane"), [""])
sketch4.MapMode = "FlatFace"
add_polygon(sketch4, [(0, -83.07719), (0, -86.6), (109, -86.6), (109, -119.6), (115, -119.6), (115, -86.6), (197.95765, -86.6), (197.95765, -83.07719), (115, -83.07719), (115, 0), (109, 0), (109, -83.07719)])  # lines 0-11
sketch4.addConstraint([
    Sketcher.Constraint("Vertical", 0),
    Sketcher.Constraint("Horizontal", 1),
    Sketcher.Constraint("Vertical", 2),
    Sketcher.Constraint("Horizontal", 3),
    Sketcher.Constraint("Vertical", 4),
    Sketcher.Constraint("Horizontal", 5),
    Sketcher.Constraint("Vertical", 6),
    Sketcher.Constraint("Horizontal", 7),
    Sketcher.Constraint("Vertical", 8),
    Sketcher.Constraint("Horizontal", 9),
    Sketcher.Constraint("Vertical", 10),
    Sketcher.Constraint("Horizontal", 11),
    Sketcher.Constraint("PointOnObject", 0, 2, -2),
    Sketcher.Constraint("PointOnObject", 8, 2, -1),
    Sketcher.Constraint("Horizontal", 1, 2, 4, 2),
    Sketcher.Constraint("Horizontal", 7, 2, 10, 2),
    Sketcher.Constraint("Vertical", 4, 2, 7, 2),
    Sketcher.Constraint("Vertical", 2, 2, 9, 2),
    Sketcher.Constraint("DistanceX", 1, 1, 1, 2, 109.0),
    Sketcher.Constraint("DistanceX", 3, 1, 3, 2, 6.0),
    Sketcher.Constraint("DistanceY", 2, 2, 2, 1, 33.0),
    Sketcher.Constraint("DistanceY", 0, 2, -1, 1, 86.6),
    Sketcher.Constraint("DistanceX", 5, 1, 5, 2, 82.95765),
    Sketcher.Constraint("DistanceY", 0, 2, 0, 1, 3.52281),
])
pad2 = body.newObject("PartDesign::Pad", "Pad001")
pad2.Profile = sketch4
pad2.Length = 4
doc.recompute()

fillet = body.newObject("PartDesign::Fillet", "Fillet")
fillet.Base = (pad2, edges_at(pad2, [
    (0, -4, -84.839),
    (54.5, -4, -86.6),
    (115, -4, -103.1),
    (197.958, -4, -84.839),
    (156.479, -4, -83.077),
    (115, -4, -41.539),
    (112, -4, 0),
    (109, -4, -103.1),
    (112, -4, -119.6),
    (156.479, -4, -86.6),
    (109, -4, -41.539),
    (54.5, -4, -83.077),
]))
fillet.Radius = 1.5
doc.recompute()

fillet2 = body.newObject("PartDesign::Fillet", "Fillet001")
fillet2.Base = (fillet, edges_at(fillet, [(0, 2, -119.6)]))
fillet2.Radius = 8
doc.recompute()

fillet3 = body.newObject("PartDesign::Fillet", "Fillet002")
fillet3.Base = (fillet2, edges_at(fillet2, [(213, 2, -119.6)]))
fillet3.Radius = 8
doc.recompute()

fillet4 = body.newObject("PartDesign::Fillet", "Fillet003")
fillet4.Base = (fillet3, edges_at(fillet3, [(213, 2, 0)]))
fillet4.Radius = 8
doc.recompute()

fillet5 = body.newObject("PartDesign::Fillet", "Fillet004")
fillet5.Base = (fillet4, edges_at(fillet4, [(0, 2, 0)]))
fillet5.Radius = 8

doc.recompute()
